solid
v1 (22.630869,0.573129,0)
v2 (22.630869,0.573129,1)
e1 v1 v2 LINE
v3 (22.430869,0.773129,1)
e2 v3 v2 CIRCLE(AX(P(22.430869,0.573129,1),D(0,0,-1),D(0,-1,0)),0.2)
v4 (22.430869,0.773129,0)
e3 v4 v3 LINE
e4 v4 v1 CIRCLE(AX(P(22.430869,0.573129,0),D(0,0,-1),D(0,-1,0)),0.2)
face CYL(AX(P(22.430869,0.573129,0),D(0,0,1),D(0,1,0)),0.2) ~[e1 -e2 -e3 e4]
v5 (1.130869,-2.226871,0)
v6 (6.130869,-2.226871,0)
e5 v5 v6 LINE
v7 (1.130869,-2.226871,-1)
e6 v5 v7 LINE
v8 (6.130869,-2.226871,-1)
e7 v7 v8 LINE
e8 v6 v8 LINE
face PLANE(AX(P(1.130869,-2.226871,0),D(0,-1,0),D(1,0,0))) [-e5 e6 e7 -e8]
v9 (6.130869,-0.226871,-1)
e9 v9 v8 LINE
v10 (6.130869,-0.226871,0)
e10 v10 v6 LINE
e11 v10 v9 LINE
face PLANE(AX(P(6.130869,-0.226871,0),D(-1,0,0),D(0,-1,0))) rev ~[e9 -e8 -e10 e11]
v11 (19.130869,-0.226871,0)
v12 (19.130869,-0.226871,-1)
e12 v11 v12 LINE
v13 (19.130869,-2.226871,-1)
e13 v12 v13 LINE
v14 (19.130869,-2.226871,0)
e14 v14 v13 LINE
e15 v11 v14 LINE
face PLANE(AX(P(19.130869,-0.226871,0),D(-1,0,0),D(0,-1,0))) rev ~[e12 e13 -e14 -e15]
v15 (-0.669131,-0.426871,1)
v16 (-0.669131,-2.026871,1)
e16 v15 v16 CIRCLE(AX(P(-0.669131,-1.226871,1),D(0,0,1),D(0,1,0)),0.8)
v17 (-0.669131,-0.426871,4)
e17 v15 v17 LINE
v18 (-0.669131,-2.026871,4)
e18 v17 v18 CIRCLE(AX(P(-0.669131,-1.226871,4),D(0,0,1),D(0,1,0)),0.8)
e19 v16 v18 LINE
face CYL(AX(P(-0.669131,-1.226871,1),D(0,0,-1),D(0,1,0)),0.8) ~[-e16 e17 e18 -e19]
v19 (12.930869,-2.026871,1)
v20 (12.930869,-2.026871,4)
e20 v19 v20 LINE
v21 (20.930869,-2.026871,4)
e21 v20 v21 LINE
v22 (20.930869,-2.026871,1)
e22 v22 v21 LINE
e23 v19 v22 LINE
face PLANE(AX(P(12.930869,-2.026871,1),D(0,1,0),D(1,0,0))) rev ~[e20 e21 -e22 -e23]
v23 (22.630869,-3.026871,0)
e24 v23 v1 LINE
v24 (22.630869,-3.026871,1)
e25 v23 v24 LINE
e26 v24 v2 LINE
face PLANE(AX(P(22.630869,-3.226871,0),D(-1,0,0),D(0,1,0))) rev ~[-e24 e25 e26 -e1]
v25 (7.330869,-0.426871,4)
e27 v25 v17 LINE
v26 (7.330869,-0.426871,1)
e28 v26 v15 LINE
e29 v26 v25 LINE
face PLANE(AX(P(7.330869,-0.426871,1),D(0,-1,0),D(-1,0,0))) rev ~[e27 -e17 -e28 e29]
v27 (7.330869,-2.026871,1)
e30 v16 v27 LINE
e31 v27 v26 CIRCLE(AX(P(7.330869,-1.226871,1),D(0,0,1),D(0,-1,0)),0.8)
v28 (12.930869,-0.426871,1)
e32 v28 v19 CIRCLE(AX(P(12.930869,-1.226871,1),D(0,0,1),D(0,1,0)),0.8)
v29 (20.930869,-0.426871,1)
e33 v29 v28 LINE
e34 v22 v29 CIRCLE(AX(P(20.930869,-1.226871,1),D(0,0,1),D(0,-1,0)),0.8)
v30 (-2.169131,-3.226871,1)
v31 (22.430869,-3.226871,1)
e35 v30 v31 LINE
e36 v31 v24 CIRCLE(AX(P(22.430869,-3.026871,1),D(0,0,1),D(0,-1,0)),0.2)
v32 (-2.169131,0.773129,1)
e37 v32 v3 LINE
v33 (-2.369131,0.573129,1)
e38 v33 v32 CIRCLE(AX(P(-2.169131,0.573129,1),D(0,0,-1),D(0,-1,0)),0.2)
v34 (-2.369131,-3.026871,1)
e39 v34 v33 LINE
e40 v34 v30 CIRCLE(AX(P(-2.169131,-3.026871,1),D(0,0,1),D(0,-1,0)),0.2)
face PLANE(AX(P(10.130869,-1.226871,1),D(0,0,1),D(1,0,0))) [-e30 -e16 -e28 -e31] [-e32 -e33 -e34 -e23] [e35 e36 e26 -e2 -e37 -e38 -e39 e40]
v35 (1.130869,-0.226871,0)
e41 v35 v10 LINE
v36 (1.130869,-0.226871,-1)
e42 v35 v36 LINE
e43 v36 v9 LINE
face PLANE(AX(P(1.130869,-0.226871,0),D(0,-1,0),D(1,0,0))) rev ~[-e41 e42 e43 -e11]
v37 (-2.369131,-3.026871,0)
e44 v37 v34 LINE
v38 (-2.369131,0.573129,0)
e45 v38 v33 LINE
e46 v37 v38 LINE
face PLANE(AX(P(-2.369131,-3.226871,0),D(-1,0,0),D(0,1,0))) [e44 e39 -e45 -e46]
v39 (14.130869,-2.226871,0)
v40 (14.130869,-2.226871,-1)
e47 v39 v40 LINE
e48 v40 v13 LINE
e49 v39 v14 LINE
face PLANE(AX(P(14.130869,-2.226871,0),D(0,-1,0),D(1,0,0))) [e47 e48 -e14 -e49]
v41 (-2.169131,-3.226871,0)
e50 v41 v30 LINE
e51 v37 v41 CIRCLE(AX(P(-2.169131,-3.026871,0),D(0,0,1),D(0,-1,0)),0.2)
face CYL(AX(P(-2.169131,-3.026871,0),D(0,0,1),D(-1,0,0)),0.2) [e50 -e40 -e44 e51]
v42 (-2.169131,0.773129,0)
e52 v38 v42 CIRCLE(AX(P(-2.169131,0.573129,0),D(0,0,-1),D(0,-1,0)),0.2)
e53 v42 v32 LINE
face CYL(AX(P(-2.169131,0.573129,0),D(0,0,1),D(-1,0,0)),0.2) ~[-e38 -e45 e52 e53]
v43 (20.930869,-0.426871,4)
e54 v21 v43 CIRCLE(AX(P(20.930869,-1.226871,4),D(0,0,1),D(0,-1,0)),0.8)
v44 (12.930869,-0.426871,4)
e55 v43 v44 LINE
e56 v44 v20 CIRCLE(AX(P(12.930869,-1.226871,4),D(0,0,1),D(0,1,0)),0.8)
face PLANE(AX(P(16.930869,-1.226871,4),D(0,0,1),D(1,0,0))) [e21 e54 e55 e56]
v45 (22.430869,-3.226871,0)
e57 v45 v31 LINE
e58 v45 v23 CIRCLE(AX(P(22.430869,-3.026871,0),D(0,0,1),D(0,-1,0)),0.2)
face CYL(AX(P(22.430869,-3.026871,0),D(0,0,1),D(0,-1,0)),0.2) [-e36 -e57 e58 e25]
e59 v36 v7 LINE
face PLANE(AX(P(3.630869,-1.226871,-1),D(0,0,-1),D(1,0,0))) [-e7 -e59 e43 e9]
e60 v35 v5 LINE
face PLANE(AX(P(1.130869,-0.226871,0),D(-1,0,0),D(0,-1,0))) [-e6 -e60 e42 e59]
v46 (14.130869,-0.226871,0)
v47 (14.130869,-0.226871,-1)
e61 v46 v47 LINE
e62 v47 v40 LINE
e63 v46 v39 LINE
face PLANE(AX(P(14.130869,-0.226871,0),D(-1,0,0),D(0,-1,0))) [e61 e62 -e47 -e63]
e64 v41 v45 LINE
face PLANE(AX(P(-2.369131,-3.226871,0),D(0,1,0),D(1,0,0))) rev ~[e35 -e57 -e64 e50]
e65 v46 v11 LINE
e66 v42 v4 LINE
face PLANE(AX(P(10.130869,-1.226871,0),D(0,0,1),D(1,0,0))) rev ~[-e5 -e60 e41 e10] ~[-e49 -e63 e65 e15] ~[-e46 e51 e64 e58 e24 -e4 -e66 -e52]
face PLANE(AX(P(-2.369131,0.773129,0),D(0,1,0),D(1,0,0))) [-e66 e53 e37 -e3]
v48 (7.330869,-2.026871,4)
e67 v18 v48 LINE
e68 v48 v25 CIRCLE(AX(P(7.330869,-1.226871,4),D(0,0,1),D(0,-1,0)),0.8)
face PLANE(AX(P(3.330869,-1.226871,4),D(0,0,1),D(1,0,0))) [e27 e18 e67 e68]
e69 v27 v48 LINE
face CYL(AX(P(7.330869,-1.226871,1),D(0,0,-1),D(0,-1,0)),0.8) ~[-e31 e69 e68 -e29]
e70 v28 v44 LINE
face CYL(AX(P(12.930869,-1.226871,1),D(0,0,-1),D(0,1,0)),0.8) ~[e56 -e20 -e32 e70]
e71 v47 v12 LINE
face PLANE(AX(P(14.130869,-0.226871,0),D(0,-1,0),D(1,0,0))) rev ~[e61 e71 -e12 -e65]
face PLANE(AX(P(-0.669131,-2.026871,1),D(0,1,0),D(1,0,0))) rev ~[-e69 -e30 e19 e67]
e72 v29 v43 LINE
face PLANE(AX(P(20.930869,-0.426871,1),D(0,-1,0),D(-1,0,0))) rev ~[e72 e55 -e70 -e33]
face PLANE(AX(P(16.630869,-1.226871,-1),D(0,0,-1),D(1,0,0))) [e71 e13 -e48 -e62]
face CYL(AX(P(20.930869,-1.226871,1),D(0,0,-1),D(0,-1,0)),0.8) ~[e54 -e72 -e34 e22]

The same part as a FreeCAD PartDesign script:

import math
import FreeCAD as App
import Part
import Sketcher


def edges_at(feature, points):
    """Names of the edges that pass closest to the given points."""
    edges = feature.Shape.Edges
    near = lambda p: min(range(len(edges)), key=lambda i: edges[i].distToShape(Part.Vertex(*p))[0])
    return sorted({f"Edge{near(p) + 1}" for p in points})


def add_polygon(sketch, points):
    """Adds a closed chain of lines whose ends are joined by coincident constraints."""
    first, n = sketch.GeometryCount, len(points)
    for a, b in zip(points, points[1:] + points[:1]):
        sketch.addGeometry(Part.LineSegment(App.Vector(*a, 0), App.Vector(*b, 0)), False)
    for i in range(n):
        sketch.addConstraint(Sketcher.Constraint("Coincident", first + i, 2, first + (i + 1) % n, 1))

doc = App.newDocument("Part")
body = doc.addObject("PartDesign::Body", "Body")

# Sketch on XY plane
sketch1 = doc.addObject("Sketcher::SketchObject", "Sketch")
body.addObject(sketch1)
sketch1.AttachmentSupport = (doc.XY_Plane, [""])
sketch1.MapMode = "FlatFace"
add_polygon(sketch1, [(-2.4, 0.8), (-2.4, -3.2), (22.6, -3.2), (22.6, 0.8)])  # lines 0-3
sketch1.addConstraint([
    Sketcher.Constraint("Vertical", 0),
    Sketcher.Constraint("Horizontal", 1),
    Sketcher.Constraint("Vertical", 2),
    Sketcher.Constraint("Horizontal", 3),
    Sketcher.Constraint("DistanceX", 1, 1, 1, 2, 25.0),
    Sketcher.Constraint("DistanceY", 0, 2, 0, 1, 4.0),
    Sketcher.Constraint("DistanceX", 0, 2, -1, 1, 2.369131),
    Sketcher.Constraint("DistanceY", 0, 2, -1, 1, 3.226871),
])
pad1 = doc.addObject("PartDesign::Pad", "Pad")
body.addObject(pad1)
pad1.Profile = sketch1
pad1.Length = 1

# Sketch on XY plane
sketch2 = doc.addObject("Sketcher::SketchObject", "Sketch001")
body.addObject(sketch2)
sketch2.AttachmentSupport = (doc.XY_Plane, [""])
sketch2.MapMode = "FlatFace"
sketch2.AttachmentOffset = App.Placement(App.Vector(0, 0, 1), App.Rotation())
sketch2.addGeometry([
    Part.ArcOfCircle(Part.Circle(App.Vector(-0.7, -1.2, 0), App.Vector(0, 0, 1), 0.8), math.radians(90), math.radians(270)),  # 0
    Part.LineSegment(App.Vector(-0.7, -2, 0), App.Vector(7.3, -2, 0)),  # 1
    Part.ArcOfCircle(Part.Circle(App.Vector(7.3, -1.2, 0), App.Vector(0, 0, 1), 0.8), math.radians(-90), math.radians(90)),  # 2
    Part.LineSegment(App.Vector(7.3, -0.4, 0), App.Vector(-0.7, -0.4, 0)),  # 3
    Part.ArcOfCircle(Part.Circle(App.Vector(12.9, -1.2, 0), App.Vector(0, 0, 1), 0.8), math.radians(90), math.radians(270)),  # 4
    Part.LineSegment(App.Vector(12.9, -2, 0), App.Vector(20.9, -2, 0)),  # 5
    Part.ArcOfCircle(Part.Circle(App.Vector(20.9, -1.2, 0), App.Vector(0, 0, 1), 0.8), math.radians(-90), math.radians(90)),  # 6
    Part.LineSegment(App.Vector(20.9, -0.4, 0), App.Vector(12.9, -0.4, 0)),  # 7
], False)
sketch2.addConstraint([
    Sketcher.Constraint("Tangent", 0, 2, 1, 1),
    Sketcher.Constraint("Tangent", 1, 2, 2, 1),
    Sketcher.Constraint("Tangent", 2, 2, 3, 1),
    Sketcher.Constraint("Tangent", 3, 2, 0, 1),
    Sketcher.Constraint("Tangent", 4, 2, 5, 1),
    Sketcher.Constraint("Tangent", 5, 2, 6, 1),
    Sketcher.Constraint("Tangent", 6, 2, 7, 1),
    Sketcher.Constraint("Tangent", 7, 2, 4, 1),
    Sketcher.Constraint("Horizontal", 1),
    Sketcher.Constraint("Horizontal", 3),
    Sketcher.Constraint("Horizontal", 5),
    Sketcher.Constraint("Horizontal", 7),
    Sketcher.Constraint("Equal", 2, 4),
    Sketcher.Constraint("Horizontal", 2, 3, 4, 3),
    Sketcher.Constraint("Equal", 3, 5),
    Sketcher.Constraint("Radius", 0, 0.8),
    Sketcher.Constraint("DistanceX", 1, 1, 1, 2, 8.0),
    Sketcher.Constraint("DistanceX", 2, 3, 4, 3, 5.6),
    Sketcher.Constraint("DistanceX", 0, 3, -1, 1, 0.669131),
    Sketcher.Constraint("DistanceY", 0, 3, -1, 1, 1.226871),
])
pad2 = doc.addObject("PartDesign::Pad", "Pad001")
body.addObject(pad2)
pad2.Profile = sketch2
pad2.Length = 3
doc.recompute()

fillet = doc.addObject("PartDesign::Fillet", "Fillet")
body.addObject(fillet)
fillet.Base = (pad2, edges_at(pad2, [
    (22.631, 0.773, 0.5),
    (22.631, -3.227, 0.5),
    (-2.369, -3.227, 0.5),
    (-2.369, 0.773, 0.5),
]))
fillet.Radius = 0.2

# Sketch on XY plane
sketch3 = doc.addObject("Sketcher::SketchObject", "Sketch002")
body.addObject(sketch3)
sketch3.AttachmentSupport = (doc.XY_Plane, [""])
sketch3.MapMode = "FlatFace"
add_polygon(sketch3, [(1.1, -2.2), (1.1, -0.2), (6.1, -0.2), (6.1, -2.2)])  # lines 0-3
add_polygon(sketch3, [(14.1, -2.2), (14.1, -0.2), (19.1, -0.2), (19.1, -2.2)])  # lines 4-7
sketch3.addConstraint([
    Sketcher.Constraint("Vertical", 0),
    Sketcher.Constraint("Horizontal", 1),
    Sketcher.Constraint("Vertical", 2),
    Sketcher.Constraint("Horizontal", 3),
    Sketcher.Constraint("Vertical", 4),
    Sketcher.Constraint("Horizontal", 5),
    Sketcher.Constraint("Vertical", 6),
    Sketcher.Constraint("Horizontal", 7),
    Sketcher.Constraint("Horizontal", 1, 2, 4, 2),
    Sketcher.Constraint("Horizontal", 3, 2, 6, 2),
    Sketcher.Constraint("Equal", 3, 5),
    Sketcher.Constraint("DistanceX", 1, 1, 1, 2, 5.0),
    Sketcher.Constraint("DistanceY", 0, 1, 0, 2, 2.0),
    Sketcher.Constraint("DistanceX", 1, 2, 4, 2, 8.0),
    Sketcher.Constraint("DistanceX", -1, 1, 0, 2, 1.130869),
    Sketcher.Constraint("DistanceY", 0, 2, -1, 1, 0.226871),
])
pad3 = doc.addObject("PartDesign::Pad", "Pad002")
body.addObject(pad3)
pad3.Profile = sketch3
pad3.Length = 1
pad3.Reversed = True

doc.recompute()
